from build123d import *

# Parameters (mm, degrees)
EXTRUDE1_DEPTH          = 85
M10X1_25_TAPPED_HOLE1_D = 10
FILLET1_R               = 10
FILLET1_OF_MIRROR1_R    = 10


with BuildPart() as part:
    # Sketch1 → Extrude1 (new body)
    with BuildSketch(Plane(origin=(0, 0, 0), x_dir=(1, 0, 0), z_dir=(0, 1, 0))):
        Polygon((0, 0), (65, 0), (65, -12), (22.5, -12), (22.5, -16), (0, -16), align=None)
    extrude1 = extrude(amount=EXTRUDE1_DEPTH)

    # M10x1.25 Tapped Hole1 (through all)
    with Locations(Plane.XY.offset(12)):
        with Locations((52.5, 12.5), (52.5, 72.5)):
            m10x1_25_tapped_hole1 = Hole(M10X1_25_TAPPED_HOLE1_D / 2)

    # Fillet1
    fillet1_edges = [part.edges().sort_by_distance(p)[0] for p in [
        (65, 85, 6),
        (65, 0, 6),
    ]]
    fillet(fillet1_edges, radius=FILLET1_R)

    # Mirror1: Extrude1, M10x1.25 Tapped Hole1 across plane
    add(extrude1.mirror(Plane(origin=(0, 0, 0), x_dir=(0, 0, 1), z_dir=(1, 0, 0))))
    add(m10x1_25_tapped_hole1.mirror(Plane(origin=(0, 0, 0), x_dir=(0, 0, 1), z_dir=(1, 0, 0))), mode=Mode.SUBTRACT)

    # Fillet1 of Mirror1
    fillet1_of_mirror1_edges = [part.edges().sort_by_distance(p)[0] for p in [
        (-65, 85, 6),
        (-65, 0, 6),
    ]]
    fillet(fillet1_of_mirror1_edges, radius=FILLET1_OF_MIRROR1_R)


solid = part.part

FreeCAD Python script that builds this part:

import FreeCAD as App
import Part
import Sketcher
Q = App.Units.Quantity


def edges_at(feature, points):
    """Names of the edges that pass closest to the given points."""
    edges = feature.Shape.Edges
    near = lambda p: min(range(len(edges)), key=lambda i: edges[i].distToShape(Part.Vertex(*p))[0])
    return sorted({f"Edge{near(p) + 1}" for p in points})


def add_polygon(sketch, points):
    """Adds a closed chain of lines whose ends are joined by coincident constraints."""
    first, n = sketch.GeometryCount, len(points)
    for a, b in zip(points, points[1:] + points[:1]):
        sketch.addGeometry(Part.LineSegment(App.Vector(*a, 0), App.Vector(*b, 0)), False)
    for i in range(n):
        sketch.addConstraint(Sketcher.Constraint("Coincident", first + i, 2, first + (i + 1) % n, 1))

doc = App.newDocument("Part")
body = doc.addObject("PartDesign::Body", "Body")

# Sketch on XZ plane
sketch1 = body.newObject("Sketcher::SketchObject", "Sketch")
sketch1.AttachmentSupport = (doc.getObject("XZ_Plane"), [""])
sketch1.MapMode = "FlatFace"
add_polygon(sketch1, [(65, 0), (0, 0), (0, 16), (22.5, 16), (22.5, 12), (65, 12)])  # lines 0-5
sketch1.addConstraint(Sketcher.Constraint("Horizontal", 0))
sketch1.addConstraint(Sketcher.Constraint("Vertical", 1))
sketch1.addConstraint(Sketcher.Constraint("Horizontal", 2))
sketch1.addConstraint(Sketcher.Constraint("Vertical", 3))
sketch1.addConstraint(Sketcher.Constraint("Horizontal", 4))
sketch1.addConstraint(Sketcher.Constraint("Vertical", 5))
sketch1.addConstraint(Sketcher.Constraint("Coincident", 0, 2, -1, 1))
sketch1.addConstraint(Sketcher.Constraint("DistanceX", 0, 2, 0, 1, Q("65 mm")))
sketch1.addConstraint(Sketcher.Constraint("DistanceY", 1, 1, 1, 2, Q("16 mm")))
sketch1.addConstraint(Sketcher.Constraint("DistanceY", 3, 2, 3, 1, Q("4 mm")))
sketch1.addConstraint(Sketcher.Constraint("DistanceX", 2, 1, 2, 2, Q("22.5 mm")))
pad1 = body.newObject("PartDesign::Pad", "Pad")
pad1.Profile = sketch1
pad1.Length = 85
pad1.Reversed = True

# Sketch on XY plane
sketch2 = body.newObject("Sketcher::SketchObject", "Sketch001")
sketch2.AttachmentSupport = (doc.getObject("XY_Plane"), [""])
sketch2.MapMode = "FlatFace"
sketch2.AttachmentOffset = App.Placement(App.Vector(0, 0, 12), App.Rotation())
sketch2.addGeometry(Part.Circle(App.Vector(52.5, 12.5, 0), App.Vector(0, 0, 1), 5), False)
sketch2.addGeometry(Part.Circle(App.Vector(52.5, 72.5, 0), App.Vector(0, 0, 1), 5), False)
sketch2.addConstraint(Sketcher.Constraint("Equal", 0, 1))
sketch2.addConstraint(Sketcher.Constraint("Vertical", 0, 3, 1, 3))
sketch2.addConstraint(Sketcher.Constraint("Diameter", 0, Q("10 mm")))
sketch2.addConstraint(Sketcher.Constraint("DistanceY", 0, 3, 1, 3, Q("60 mm")))
sketch2.addConstraint(Sketcher.Constraint("DistanceX", -1, 1, 0, 3, Q("52.5 mm")))
sketch2.addConstraint(Sketcher.Constraint("DistanceY", -1, 1, 0, 3, Q("12.5 mm")))
doc.recompute()
hole = body.newObject("PartDesign::Hole", "Hole")
hole.Profile = sketch2
hole.ThreadType = "None"
hole.Diameter = 10
hole.DepthType = "ThroughAll"
doc.recompute()

fillet = body.newObject("PartDesign::Fillet", "Fillet")
fillet.Base = (hole, edges_at(hole, [(65, 85, 6), (65, 0, 6)]))
fillet.Radius = 10
doc.recompute()

mirrored = body.newObject("PartDesign::Mirrored", "Mirrored")
mirrored.Originals = [pad1, hole]
mirrored.MirrorPlane = (doc.getObject("YZ_Plane"), [""])
body.Tip = mirrored
doc.recompute()

fillet2 = body.newObject("PartDesign::Fillet", "Fillet001")
fillet2.Base = (mirrored, edges_at(mirrored, [(-65, 85, 6), (-65, 0, 6)]))
fillet2.Radius = 10

doc.recompute()
